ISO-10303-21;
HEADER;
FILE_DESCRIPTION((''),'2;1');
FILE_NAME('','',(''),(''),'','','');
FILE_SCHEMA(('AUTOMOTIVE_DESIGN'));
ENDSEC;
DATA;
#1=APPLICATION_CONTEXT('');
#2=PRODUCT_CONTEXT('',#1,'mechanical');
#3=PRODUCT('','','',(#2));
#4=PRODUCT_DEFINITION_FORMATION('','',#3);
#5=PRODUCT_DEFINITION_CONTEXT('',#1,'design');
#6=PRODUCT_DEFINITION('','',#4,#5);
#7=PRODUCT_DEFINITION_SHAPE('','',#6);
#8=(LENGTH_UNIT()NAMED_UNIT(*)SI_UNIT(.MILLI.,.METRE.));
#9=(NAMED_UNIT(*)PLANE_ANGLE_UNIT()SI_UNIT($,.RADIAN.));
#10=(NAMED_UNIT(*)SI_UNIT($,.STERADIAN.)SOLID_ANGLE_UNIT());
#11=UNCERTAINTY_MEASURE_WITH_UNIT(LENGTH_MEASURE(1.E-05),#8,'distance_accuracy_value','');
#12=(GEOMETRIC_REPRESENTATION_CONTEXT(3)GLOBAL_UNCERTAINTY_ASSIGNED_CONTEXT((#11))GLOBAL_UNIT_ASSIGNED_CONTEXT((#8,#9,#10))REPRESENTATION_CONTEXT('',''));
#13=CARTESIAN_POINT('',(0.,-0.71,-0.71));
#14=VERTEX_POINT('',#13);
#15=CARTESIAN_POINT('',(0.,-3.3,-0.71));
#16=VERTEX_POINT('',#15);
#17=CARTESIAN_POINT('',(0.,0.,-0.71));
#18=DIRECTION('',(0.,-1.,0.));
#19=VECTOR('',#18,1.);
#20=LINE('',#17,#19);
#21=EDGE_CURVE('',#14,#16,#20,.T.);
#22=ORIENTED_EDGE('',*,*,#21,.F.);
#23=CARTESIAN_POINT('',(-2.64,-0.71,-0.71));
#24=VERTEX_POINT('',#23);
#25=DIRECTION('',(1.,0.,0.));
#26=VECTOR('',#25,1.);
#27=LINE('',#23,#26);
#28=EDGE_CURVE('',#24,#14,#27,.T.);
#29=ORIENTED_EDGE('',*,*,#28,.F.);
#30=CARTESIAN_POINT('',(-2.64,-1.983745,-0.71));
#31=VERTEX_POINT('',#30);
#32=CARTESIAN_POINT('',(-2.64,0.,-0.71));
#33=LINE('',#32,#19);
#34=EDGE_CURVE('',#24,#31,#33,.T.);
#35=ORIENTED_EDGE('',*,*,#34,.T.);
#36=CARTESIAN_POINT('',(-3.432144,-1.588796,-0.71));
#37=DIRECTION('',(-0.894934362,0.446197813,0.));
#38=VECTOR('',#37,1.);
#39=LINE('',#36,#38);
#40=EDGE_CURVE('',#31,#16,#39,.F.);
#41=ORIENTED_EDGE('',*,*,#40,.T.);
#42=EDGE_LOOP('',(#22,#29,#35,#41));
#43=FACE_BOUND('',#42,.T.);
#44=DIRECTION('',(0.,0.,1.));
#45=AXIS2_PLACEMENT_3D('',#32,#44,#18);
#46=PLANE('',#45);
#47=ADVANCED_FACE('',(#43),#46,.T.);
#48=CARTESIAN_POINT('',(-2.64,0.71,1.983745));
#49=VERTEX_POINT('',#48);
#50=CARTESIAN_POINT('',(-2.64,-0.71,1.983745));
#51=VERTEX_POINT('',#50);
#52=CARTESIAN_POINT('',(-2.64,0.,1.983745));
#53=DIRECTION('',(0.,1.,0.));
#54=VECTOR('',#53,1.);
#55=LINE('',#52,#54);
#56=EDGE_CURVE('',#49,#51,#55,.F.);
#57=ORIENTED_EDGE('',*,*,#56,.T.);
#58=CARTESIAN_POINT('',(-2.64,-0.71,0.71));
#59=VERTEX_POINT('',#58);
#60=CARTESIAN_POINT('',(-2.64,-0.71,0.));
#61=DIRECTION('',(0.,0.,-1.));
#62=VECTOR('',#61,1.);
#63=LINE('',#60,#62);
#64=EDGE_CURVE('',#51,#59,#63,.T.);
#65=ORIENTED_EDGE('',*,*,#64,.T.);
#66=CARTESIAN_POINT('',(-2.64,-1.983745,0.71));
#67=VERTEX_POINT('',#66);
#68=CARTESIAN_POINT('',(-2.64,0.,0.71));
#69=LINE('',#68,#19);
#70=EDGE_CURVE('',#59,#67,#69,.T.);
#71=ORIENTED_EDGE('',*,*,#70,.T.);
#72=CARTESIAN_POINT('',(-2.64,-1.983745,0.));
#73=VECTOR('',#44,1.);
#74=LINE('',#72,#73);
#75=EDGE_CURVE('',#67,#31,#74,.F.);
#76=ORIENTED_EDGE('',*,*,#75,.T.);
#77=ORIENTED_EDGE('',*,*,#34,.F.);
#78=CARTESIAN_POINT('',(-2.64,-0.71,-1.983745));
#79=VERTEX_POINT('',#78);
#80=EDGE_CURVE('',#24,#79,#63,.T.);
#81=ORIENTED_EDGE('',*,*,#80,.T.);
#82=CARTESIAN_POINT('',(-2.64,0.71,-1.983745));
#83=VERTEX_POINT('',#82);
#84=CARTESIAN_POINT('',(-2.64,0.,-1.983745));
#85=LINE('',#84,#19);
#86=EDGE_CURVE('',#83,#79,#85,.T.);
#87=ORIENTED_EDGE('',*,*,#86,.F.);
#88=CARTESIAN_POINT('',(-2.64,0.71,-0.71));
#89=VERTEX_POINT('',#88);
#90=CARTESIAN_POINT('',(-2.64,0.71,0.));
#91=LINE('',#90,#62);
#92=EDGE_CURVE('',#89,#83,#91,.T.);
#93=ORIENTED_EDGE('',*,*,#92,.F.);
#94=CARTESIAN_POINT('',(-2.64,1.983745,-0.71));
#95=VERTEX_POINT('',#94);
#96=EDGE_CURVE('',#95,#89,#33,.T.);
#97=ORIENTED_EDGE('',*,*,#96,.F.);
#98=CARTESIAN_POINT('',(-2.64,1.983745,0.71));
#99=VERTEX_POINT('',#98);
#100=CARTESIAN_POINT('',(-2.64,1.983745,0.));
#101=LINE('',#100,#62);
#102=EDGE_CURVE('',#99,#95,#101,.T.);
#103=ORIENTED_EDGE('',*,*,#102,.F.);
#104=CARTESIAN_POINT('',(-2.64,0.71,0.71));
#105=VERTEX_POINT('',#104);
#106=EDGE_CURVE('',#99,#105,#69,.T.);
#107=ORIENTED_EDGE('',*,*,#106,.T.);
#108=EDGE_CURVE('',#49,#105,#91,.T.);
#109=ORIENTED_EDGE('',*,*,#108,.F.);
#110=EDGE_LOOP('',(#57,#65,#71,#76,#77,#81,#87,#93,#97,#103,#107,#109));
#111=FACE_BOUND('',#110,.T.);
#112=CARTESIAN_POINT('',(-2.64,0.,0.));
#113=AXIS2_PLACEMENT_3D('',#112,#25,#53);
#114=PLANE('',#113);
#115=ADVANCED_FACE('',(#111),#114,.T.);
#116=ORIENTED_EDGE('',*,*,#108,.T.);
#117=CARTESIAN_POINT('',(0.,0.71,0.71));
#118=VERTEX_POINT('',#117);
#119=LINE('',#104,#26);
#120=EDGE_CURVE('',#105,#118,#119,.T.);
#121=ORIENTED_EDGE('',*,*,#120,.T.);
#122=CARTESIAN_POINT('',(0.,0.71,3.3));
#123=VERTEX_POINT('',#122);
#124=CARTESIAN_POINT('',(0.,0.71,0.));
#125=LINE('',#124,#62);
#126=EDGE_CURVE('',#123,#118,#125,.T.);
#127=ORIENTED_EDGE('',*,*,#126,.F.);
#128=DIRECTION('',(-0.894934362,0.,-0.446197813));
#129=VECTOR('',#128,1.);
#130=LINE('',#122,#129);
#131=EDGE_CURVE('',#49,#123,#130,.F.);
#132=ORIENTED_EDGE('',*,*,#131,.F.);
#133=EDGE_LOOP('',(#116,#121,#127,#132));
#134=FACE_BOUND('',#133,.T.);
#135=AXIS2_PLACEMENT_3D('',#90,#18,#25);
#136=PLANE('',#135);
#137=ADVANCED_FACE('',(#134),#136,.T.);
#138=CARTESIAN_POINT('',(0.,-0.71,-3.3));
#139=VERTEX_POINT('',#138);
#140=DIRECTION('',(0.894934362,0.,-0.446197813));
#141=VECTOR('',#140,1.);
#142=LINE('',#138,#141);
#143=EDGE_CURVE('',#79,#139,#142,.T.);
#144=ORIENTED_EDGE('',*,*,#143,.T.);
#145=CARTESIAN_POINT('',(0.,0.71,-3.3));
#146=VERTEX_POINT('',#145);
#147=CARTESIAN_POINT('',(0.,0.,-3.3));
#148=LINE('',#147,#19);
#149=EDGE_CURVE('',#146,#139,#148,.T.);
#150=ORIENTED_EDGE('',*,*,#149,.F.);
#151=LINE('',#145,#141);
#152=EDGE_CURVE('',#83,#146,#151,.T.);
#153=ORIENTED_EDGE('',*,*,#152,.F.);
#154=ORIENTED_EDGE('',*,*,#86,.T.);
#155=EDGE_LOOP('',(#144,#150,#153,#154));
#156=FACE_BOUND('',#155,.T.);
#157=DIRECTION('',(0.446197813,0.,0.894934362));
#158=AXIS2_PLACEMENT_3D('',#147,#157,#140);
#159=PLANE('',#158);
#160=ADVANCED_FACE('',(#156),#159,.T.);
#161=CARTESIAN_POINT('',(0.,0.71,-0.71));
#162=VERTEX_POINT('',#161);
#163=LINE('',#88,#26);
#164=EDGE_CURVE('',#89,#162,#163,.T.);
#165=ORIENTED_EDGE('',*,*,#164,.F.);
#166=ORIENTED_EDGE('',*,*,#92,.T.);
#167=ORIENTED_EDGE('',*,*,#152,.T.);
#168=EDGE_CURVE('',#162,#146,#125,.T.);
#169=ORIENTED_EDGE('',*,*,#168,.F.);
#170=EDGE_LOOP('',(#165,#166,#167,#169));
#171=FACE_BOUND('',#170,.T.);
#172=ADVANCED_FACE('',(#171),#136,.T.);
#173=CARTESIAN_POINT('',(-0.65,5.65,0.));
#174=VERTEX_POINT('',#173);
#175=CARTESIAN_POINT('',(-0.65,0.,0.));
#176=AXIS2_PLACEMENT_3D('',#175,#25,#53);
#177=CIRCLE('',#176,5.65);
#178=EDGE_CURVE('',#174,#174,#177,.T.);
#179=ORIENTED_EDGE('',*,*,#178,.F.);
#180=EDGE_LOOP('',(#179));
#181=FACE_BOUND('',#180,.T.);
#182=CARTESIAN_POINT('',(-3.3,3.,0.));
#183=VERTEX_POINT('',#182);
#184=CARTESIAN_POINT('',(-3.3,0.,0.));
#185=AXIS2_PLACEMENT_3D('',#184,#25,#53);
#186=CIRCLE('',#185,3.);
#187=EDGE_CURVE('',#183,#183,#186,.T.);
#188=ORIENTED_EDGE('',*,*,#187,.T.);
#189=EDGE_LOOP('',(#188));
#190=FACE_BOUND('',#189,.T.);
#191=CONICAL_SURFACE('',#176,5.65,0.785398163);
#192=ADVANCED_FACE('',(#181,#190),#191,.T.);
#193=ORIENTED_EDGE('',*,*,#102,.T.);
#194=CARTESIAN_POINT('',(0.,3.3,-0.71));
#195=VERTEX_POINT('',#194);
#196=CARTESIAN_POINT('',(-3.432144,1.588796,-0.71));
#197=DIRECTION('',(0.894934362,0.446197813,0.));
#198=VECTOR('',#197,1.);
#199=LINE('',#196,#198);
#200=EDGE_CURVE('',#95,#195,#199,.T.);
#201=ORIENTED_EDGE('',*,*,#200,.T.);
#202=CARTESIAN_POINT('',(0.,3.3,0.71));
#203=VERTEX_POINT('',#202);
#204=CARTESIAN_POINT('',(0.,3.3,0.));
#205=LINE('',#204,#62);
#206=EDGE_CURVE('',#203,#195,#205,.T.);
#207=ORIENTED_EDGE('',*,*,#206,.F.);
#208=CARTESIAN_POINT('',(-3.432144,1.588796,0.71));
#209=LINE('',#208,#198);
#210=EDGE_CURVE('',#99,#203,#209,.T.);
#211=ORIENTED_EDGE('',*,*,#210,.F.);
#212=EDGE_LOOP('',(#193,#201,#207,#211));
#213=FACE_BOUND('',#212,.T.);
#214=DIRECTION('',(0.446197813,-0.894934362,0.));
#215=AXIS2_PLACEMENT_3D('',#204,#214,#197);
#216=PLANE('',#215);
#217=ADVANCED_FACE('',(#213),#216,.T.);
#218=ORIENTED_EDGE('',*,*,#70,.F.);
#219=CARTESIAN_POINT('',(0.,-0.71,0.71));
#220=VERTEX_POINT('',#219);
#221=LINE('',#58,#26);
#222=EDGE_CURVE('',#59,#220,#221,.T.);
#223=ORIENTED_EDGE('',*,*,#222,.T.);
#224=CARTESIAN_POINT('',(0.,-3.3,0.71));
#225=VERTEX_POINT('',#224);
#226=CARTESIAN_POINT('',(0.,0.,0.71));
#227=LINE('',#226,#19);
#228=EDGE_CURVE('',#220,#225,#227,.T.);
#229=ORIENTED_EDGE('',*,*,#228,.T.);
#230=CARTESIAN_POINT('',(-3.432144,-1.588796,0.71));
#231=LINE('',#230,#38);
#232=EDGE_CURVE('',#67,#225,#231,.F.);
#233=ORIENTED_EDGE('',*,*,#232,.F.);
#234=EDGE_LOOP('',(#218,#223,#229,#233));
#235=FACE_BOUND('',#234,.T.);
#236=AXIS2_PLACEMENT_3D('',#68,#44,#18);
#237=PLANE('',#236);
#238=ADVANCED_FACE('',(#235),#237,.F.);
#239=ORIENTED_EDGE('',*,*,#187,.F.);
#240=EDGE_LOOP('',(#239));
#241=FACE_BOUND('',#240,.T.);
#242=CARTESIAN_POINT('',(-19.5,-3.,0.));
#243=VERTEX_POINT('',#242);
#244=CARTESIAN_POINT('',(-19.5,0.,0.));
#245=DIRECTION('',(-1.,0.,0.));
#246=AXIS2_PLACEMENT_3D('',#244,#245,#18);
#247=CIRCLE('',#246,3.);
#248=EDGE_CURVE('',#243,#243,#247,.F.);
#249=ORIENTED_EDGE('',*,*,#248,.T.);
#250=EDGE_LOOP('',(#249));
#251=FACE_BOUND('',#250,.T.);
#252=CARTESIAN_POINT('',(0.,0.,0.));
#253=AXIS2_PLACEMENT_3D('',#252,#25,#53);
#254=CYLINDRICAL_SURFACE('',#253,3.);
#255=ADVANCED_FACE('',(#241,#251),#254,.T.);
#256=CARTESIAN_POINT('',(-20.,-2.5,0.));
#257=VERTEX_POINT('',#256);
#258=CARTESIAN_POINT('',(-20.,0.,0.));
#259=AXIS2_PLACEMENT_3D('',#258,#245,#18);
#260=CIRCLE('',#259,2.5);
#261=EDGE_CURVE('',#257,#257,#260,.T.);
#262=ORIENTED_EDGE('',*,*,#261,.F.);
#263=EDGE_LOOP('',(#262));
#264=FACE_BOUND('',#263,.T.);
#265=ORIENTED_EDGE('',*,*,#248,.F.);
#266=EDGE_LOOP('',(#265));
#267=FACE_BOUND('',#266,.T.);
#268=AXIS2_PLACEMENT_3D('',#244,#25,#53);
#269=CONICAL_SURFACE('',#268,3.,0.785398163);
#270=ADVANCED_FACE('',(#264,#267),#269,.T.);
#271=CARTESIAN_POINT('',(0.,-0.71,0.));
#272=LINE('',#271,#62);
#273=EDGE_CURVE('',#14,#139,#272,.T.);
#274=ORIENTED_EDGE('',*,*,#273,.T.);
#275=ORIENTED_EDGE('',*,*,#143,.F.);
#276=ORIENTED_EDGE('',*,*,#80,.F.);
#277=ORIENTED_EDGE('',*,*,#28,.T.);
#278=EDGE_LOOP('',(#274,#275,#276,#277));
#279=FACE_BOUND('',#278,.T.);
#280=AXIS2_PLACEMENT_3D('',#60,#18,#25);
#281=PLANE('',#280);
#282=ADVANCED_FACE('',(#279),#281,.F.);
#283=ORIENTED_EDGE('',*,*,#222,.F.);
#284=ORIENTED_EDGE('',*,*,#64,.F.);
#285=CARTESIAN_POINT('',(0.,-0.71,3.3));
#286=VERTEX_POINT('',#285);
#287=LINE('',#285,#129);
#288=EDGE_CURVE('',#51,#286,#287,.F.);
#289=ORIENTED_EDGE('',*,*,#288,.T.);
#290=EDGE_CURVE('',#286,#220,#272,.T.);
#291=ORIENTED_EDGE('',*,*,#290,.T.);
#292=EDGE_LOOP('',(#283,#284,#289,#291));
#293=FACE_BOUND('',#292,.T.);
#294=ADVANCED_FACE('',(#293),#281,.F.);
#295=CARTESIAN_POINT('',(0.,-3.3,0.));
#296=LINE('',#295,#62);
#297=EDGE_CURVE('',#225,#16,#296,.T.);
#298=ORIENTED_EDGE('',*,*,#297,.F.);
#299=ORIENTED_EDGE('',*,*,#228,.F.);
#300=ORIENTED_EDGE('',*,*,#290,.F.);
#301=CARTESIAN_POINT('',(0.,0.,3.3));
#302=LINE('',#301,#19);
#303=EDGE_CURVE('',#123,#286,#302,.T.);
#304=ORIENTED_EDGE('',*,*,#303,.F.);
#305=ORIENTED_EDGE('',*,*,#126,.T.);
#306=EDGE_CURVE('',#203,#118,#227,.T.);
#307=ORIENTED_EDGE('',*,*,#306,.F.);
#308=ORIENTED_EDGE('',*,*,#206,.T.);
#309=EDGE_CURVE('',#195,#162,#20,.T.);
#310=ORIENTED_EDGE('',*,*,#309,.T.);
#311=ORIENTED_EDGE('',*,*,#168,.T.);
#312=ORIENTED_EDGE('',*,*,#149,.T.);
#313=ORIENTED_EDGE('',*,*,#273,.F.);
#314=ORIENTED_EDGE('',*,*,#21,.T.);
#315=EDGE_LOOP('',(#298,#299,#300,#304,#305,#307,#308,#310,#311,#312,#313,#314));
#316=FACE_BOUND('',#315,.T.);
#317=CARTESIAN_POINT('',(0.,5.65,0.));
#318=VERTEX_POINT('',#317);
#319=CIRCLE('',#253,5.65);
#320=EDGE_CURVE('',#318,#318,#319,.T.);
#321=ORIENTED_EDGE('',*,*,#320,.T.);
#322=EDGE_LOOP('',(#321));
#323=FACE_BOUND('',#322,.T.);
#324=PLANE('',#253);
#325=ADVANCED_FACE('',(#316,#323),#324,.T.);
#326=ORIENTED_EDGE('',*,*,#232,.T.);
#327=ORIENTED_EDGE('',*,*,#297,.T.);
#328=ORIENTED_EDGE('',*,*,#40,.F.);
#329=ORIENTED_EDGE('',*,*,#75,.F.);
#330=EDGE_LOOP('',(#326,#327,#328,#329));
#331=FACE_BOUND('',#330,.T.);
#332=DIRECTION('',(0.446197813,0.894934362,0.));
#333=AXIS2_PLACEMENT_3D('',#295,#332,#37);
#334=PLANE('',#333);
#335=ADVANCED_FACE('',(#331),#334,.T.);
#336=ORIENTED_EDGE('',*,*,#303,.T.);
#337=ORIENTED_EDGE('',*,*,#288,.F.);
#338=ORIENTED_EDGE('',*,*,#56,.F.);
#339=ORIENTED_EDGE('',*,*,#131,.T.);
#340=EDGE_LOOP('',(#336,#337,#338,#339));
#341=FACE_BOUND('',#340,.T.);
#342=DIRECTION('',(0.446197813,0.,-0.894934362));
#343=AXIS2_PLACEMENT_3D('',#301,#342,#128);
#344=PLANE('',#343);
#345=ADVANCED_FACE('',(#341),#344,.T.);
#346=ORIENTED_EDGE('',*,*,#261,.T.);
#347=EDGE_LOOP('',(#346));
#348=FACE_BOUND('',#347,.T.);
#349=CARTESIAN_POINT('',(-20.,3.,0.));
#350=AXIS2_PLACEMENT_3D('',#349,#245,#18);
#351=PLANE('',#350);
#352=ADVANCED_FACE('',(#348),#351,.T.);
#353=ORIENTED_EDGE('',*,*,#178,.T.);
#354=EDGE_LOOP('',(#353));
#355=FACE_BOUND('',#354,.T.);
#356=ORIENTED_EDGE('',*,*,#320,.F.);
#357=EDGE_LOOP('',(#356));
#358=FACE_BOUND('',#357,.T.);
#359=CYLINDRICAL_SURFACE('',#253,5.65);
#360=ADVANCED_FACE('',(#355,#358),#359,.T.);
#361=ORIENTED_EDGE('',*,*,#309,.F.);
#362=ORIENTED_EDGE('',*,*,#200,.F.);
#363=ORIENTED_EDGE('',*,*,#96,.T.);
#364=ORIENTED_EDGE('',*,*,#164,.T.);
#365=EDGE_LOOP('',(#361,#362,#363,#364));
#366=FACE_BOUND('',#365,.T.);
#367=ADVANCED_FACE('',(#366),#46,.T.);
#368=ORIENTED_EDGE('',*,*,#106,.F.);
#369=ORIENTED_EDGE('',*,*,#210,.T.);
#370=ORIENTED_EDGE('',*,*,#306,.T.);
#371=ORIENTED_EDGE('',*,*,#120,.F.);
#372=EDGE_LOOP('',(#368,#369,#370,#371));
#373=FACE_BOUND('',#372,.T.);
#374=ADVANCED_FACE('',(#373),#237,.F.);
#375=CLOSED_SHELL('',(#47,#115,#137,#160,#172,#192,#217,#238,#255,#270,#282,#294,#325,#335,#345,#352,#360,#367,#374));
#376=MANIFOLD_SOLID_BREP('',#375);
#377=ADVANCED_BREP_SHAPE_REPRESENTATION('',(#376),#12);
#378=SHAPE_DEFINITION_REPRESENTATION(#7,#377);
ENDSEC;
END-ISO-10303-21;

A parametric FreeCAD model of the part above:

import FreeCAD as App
import Part
import Sketcher
Q = App.Units.Quantity


def edges_at(feature, points):
    """Names of the edges that pass closest to the given points."""
    edges = feature.Shape.Edges
    near = lambda p: min(range(len(edges)), key=lambda i: edges[i].distToShape(Part.Vertex(*p))[0])
    return sorted({f"Edge{near(p) + 1}" for p in points})


def faces_at(feature, points):
    """Names of the faces that lie closest to the given points."""
    faces = feature.Shape.Faces
    near = lambda p: min(range(len(faces)), key=lambda i: faces[i].distToShape(Part.Vertex(*p))[0])
    return sorted({f"Face{near(p) + 1}" for p in points})


def add_polygon(sketch, points):
    """Adds a closed chain of lines whose ends are joined by coincident constraints."""
    first, n = sketch.GeometryCount, len(points)
    for a, b in zip(points, points[1:] + points[:1]):
        sketch.addGeometry(Part.LineSegment(App.Vector(*a, 0), App.Vector(*b, 0)), False)
    for i in range(n):
        sketch.addConstraint(Sketcher.Constraint("Coincident", first + i, 2, first + (i + 1) % n, 1))

doc = App.newDocument("Part")
body = doc.addObject("PartDesign::Body", "Body")

# Sketch on XY plane
sketch1 = body.newObject("Sketcher::SketchObject", "Sketch")
sketch1.AttachmentSupport = (doc.getObject("XY_Plane"), [""])
sketch1.MapMode = "FlatFace"
add_polygon(sketch1, [(0, 0), (0, 5.65), (-0.65, 5.65), (-3.3, 3), (-20, 3), (-20, 0)])  # lines 0-5
sketch1.addConstraint([
    Sketcher.Constraint("Vertical", 0),
    Sketcher.Constraint("Horizontal", 1),
    Sketcher.Constraint("Horizontal", 3),
    Sketcher.Constraint("Vertical", 4),
    Sketcher.Constraint("Horizontal", 5),
    Sketcher.Constraint("Coincident", 5, 2, -1, 1),
    Sketcher.Constraint("DistanceX", 5, 1, 5, 2, 20.0),
    Sketcher.Constraint("DistanceY", 4, 2, 4, 1, 3.0),
    Sketcher.Constraint("Angle", 2, Q("-135 deg")),
    Sketcher.Constraint("DistanceX", 3, 2, 3, 1, 16.7),
    Sketcher.Constraint("DistanceX", 1, 2, 1, 1, 0.65),
])
revolution = body.newObject("PartDesign::Revolution", "Revolution")
revolution.Profile = sketch1
revolution.ReferenceAxis = (sketch1, ["H_Axis"])
revolution.Angle = 360

# Sketch on YZ plane
sketch2 = body.newObject("Sketcher::SketchObject", "Sketch001")
sketch2.AttachmentSupport = (doc.getObject("YZ_Plane"), [""])
sketch2.MapMode = "FlatFace"
add_polygon(sketch2, [(3.3, 0.71), (0.71, 0.71), (0.71, 3.3), (-0.71, 3.3), (-0.71, 0.71), (-3.3, 0.71), (-3.3, -0.71), (-0.71, -0.71), (-0.71, -3.3), (0.71, -3.3), (0.71, -0.71), (3.3, -0.71)])  # lines 0-11
sketch2.addConstraint([
    Sketcher.Constraint("Horizontal", 0),
    Sketcher.Constraint("Vertical", 1),
    Sketcher.Constraint("Horizontal", 2),
    Sketcher.Constraint("Vertical", 3),
    Sketcher.Constraint("Horizontal", 4),
    Sketcher.Constraint("Vertical", 5),
    Sketcher.Constraint("Horizontal", 6),
    Sketcher.Constraint("Vertical", 7),
    Sketcher.Constraint("Horizontal", 8),
    Sketcher.Constraint("Vertical", 9),
    Sketcher.Constraint("Horizontal", 10),
    Sketcher.Constraint("Vertical", 11),
    Sketcher.Constraint("Symmetric", 0, 2, 6, 2, -1, 1),
    Sketcher.Constraint("Symmetric", 2, 2, 8, 2, -1, 1),
    Sketcher.Constraint("Symmetric", 4, 2, 10, 2, -1, 1),
    Sketcher.Constraint("Symmetric", 0, 2, 3, 2, -2),
    Sketcher.Constraint("Equal", 10, 1),
    Sketcher.Constraint("Equal", 8, 5),
    Sketcher.Constraint("DistanceX", 0, 2, 0, 1, 2.59),
    Sketcher.Constraint("DistanceX", 2, 2, 2, 1, 1.42),
])
pocket1 = body.newObject("PartDesign::Pocket", "Pocket")
pocket1.Profile = sketch2
pocket1.Length = 2.64
doc.recompute()

draft = body.newObject("PartDesign::Draft", "Draft")
draft.Base = (pocket1, faces_at(pocket1, [
    (-1.32, 0, -3.3),
    (-1.32, -3.3, 0),
    (-1.32, 0, 3.3),
    (-1.32, 3.3, 0),
]))
draft.NeutralPlane = (doc.getObject("YZ_Plane"), [""])
draft.Angle = 26.5
draft.Reversed = False
doc.recompute()

chamfer = body.newObject("PartDesign::Chamfer", "Chamfer")
chamfer.Base = (draft, edges_at(draft, [(-20, -3, 0)]))
chamfer.Size = 0.5

doc.recompute()
